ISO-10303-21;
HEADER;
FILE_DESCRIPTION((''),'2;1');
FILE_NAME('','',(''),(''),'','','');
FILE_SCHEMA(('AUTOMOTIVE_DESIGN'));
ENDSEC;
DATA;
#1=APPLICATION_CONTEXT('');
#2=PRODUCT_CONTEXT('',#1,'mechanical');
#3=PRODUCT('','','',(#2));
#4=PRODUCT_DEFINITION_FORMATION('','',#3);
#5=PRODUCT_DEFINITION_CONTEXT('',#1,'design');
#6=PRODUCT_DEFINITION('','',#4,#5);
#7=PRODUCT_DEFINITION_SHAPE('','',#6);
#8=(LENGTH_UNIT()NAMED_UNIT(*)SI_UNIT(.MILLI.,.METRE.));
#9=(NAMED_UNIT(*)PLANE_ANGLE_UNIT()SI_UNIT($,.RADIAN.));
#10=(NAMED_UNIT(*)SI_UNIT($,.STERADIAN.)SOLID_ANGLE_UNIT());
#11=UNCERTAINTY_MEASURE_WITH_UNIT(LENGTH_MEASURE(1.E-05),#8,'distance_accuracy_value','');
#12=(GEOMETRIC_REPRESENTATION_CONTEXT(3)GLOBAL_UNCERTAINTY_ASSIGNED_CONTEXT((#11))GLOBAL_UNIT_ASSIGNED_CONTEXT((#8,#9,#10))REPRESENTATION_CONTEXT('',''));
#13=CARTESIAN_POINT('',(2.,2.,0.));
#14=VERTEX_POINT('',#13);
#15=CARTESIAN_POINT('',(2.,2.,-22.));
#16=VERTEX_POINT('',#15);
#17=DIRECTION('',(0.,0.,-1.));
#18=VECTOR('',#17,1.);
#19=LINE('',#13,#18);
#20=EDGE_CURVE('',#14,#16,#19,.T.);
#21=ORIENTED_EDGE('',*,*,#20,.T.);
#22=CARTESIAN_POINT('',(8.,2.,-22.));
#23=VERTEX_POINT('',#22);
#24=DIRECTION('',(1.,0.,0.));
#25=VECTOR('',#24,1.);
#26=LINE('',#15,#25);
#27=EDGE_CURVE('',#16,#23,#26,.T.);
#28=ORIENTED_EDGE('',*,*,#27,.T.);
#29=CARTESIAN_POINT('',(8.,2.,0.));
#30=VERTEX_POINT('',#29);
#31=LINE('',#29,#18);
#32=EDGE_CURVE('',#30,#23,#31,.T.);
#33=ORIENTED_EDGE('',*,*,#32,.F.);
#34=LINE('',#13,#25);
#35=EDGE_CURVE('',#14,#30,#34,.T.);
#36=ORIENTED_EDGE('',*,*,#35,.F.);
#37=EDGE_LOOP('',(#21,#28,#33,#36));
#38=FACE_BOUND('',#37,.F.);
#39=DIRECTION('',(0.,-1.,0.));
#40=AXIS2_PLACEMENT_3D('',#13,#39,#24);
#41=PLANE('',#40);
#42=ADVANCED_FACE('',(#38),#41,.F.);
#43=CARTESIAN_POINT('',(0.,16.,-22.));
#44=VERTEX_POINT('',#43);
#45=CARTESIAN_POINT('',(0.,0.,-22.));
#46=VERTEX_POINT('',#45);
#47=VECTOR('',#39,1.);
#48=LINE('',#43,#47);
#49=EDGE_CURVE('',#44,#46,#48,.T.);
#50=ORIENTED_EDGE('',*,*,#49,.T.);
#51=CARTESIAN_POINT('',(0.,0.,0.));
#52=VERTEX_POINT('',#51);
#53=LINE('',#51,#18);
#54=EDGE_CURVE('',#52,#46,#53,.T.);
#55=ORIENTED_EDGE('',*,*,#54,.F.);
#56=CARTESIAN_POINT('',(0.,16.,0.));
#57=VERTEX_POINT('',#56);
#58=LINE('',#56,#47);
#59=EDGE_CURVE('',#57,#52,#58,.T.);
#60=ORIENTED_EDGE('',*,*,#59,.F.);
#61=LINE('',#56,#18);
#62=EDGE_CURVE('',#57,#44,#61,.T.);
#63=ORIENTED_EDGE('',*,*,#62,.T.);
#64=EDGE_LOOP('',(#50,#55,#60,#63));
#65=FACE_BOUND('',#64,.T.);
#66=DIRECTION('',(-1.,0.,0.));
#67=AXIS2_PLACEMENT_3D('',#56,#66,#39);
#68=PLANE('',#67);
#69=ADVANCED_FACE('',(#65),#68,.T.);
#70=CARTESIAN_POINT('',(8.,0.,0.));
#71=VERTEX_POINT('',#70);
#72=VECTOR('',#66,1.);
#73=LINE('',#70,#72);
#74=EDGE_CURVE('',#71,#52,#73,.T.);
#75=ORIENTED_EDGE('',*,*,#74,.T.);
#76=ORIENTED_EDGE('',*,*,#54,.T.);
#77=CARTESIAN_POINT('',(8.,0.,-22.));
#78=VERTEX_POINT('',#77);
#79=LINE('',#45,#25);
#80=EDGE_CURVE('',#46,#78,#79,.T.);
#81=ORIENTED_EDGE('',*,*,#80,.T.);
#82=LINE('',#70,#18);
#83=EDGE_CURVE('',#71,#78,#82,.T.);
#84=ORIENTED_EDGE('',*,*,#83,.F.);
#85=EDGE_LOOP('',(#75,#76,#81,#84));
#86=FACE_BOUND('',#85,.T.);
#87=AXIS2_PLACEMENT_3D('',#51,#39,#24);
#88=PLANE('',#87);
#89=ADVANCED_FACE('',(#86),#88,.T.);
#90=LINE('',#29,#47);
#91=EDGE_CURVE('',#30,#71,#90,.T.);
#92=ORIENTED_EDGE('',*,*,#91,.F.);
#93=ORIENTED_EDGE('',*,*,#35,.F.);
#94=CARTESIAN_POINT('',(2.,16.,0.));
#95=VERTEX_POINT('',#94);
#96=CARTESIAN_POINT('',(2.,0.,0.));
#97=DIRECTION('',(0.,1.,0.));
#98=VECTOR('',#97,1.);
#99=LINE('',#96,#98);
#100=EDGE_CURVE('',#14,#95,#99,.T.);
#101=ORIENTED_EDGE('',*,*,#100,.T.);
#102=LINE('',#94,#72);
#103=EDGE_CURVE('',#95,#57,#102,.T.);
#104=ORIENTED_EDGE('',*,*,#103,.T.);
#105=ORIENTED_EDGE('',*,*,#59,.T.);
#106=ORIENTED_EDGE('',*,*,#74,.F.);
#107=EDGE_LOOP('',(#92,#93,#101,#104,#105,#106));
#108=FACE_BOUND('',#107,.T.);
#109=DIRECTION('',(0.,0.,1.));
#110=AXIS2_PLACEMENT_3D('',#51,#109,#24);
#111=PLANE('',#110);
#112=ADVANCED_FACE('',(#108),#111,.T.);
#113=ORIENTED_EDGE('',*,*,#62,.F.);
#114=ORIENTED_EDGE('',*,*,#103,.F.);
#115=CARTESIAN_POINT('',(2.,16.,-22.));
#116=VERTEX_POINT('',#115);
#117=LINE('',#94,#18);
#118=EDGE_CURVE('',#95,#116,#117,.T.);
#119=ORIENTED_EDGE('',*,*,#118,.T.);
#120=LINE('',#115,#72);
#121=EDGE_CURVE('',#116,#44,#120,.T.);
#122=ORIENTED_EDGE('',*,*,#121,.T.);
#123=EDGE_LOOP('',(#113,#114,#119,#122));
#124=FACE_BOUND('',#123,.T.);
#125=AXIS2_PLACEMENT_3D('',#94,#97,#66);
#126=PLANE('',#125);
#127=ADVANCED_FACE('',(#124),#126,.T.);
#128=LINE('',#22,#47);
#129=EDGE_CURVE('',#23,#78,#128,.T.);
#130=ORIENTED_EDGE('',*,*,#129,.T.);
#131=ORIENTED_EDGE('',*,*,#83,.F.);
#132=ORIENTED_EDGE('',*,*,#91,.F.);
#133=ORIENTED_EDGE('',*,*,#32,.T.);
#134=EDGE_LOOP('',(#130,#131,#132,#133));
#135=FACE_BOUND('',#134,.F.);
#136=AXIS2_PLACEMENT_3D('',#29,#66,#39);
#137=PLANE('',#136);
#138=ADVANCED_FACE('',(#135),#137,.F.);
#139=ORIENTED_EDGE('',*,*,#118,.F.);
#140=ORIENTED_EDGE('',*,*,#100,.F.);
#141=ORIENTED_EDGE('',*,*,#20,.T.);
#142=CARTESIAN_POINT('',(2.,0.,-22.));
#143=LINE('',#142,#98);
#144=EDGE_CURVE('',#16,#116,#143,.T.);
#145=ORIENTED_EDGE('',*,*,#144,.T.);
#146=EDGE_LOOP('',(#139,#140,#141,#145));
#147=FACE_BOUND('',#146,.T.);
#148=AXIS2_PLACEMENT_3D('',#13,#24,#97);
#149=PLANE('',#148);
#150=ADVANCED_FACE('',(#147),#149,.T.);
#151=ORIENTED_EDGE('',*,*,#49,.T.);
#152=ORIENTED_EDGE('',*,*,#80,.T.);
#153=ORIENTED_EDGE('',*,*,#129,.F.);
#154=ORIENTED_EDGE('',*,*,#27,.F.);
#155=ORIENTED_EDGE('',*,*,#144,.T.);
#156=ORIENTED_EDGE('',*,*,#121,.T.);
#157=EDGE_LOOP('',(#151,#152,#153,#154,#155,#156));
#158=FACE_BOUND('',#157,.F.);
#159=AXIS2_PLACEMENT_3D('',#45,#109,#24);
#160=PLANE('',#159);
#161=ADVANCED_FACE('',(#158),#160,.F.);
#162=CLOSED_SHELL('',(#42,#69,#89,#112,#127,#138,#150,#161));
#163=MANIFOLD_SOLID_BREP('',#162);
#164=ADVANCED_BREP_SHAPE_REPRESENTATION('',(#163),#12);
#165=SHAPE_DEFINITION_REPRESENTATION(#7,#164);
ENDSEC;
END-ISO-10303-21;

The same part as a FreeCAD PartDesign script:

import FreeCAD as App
import Part
import Sketcher


def add_polygon(sketch, points):
    """Adds a closed chain of lines whose ends are joined by coincident constraints."""
    first, n = sketch.GeometryCount, len(points)
    for a, b in zip(points, points[1:] + points[:1]):
        sketch.addGeometry(Part.LineSegment(App.Vector(*a, 0), App.Vector(*b, 0)), False)
    for i in range(n):
        sketch.addConstraint(Sketcher.Constraint("Coincident", first + i, 2, first + (i + 1) % n, 1))

doc = App.newDocument("Part")
body = doc.addObject("PartDesign::Body", "Body")

# Sketch on XY plane
sketch1 = body.newObject("Sketcher::SketchObject", "Sketch")
sketch1.AttachmentSupport = (doc.getObject("XY_Plane"), [""])
sketch1.MapMode = "FlatFace"
add_polygon(sketch1, [(0, 16), (0, 0), (8, 0), (8, 2), (2, 2), (2, 16)])  # lines 0-5
sketch1.addConstraint(Sketcher.Constraint("Vertical", 0))
sketch1.addConstraint(Sketcher.Constraint("Horizontal", 1))
sketch1.addConstraint(Sketcher.Constraint("Vertical", 2))
sketch1.addConstraint(Sketcher.Constraint("Horizontal", 3))
sketch1.addConstraint(Sketcher.Constraint("Vertical", 4))
sketch1.addConstraint(Sketcher.Constraint("Horizontal", 5))
sketch1.addConstraint(Sketcher.Constraint("Coincident", 0, 2, -1, 1))
sketch1.addConstraint(Sketcher.Constraint("Equal", 5, 2))
sketch1.addConstraint(Sketcher.Constraint("DistanceX", 3, 2, 3, 1, 6.0))
sketch1.addConstraint(Sketcher.Constraint("DistanceX", 5, 2, 5, 1, 2.0))
sketch1.addConstraint(Sketcher.Constraint("DistanceY", 0, 2, 0, 1, 16.0))
pad1 = body.newObject("PartDesign::Pad", "Pad")
pad1.Profile = sketch1
pad1.Length = 22
pad1.Reversed = True

doc.recompute()
